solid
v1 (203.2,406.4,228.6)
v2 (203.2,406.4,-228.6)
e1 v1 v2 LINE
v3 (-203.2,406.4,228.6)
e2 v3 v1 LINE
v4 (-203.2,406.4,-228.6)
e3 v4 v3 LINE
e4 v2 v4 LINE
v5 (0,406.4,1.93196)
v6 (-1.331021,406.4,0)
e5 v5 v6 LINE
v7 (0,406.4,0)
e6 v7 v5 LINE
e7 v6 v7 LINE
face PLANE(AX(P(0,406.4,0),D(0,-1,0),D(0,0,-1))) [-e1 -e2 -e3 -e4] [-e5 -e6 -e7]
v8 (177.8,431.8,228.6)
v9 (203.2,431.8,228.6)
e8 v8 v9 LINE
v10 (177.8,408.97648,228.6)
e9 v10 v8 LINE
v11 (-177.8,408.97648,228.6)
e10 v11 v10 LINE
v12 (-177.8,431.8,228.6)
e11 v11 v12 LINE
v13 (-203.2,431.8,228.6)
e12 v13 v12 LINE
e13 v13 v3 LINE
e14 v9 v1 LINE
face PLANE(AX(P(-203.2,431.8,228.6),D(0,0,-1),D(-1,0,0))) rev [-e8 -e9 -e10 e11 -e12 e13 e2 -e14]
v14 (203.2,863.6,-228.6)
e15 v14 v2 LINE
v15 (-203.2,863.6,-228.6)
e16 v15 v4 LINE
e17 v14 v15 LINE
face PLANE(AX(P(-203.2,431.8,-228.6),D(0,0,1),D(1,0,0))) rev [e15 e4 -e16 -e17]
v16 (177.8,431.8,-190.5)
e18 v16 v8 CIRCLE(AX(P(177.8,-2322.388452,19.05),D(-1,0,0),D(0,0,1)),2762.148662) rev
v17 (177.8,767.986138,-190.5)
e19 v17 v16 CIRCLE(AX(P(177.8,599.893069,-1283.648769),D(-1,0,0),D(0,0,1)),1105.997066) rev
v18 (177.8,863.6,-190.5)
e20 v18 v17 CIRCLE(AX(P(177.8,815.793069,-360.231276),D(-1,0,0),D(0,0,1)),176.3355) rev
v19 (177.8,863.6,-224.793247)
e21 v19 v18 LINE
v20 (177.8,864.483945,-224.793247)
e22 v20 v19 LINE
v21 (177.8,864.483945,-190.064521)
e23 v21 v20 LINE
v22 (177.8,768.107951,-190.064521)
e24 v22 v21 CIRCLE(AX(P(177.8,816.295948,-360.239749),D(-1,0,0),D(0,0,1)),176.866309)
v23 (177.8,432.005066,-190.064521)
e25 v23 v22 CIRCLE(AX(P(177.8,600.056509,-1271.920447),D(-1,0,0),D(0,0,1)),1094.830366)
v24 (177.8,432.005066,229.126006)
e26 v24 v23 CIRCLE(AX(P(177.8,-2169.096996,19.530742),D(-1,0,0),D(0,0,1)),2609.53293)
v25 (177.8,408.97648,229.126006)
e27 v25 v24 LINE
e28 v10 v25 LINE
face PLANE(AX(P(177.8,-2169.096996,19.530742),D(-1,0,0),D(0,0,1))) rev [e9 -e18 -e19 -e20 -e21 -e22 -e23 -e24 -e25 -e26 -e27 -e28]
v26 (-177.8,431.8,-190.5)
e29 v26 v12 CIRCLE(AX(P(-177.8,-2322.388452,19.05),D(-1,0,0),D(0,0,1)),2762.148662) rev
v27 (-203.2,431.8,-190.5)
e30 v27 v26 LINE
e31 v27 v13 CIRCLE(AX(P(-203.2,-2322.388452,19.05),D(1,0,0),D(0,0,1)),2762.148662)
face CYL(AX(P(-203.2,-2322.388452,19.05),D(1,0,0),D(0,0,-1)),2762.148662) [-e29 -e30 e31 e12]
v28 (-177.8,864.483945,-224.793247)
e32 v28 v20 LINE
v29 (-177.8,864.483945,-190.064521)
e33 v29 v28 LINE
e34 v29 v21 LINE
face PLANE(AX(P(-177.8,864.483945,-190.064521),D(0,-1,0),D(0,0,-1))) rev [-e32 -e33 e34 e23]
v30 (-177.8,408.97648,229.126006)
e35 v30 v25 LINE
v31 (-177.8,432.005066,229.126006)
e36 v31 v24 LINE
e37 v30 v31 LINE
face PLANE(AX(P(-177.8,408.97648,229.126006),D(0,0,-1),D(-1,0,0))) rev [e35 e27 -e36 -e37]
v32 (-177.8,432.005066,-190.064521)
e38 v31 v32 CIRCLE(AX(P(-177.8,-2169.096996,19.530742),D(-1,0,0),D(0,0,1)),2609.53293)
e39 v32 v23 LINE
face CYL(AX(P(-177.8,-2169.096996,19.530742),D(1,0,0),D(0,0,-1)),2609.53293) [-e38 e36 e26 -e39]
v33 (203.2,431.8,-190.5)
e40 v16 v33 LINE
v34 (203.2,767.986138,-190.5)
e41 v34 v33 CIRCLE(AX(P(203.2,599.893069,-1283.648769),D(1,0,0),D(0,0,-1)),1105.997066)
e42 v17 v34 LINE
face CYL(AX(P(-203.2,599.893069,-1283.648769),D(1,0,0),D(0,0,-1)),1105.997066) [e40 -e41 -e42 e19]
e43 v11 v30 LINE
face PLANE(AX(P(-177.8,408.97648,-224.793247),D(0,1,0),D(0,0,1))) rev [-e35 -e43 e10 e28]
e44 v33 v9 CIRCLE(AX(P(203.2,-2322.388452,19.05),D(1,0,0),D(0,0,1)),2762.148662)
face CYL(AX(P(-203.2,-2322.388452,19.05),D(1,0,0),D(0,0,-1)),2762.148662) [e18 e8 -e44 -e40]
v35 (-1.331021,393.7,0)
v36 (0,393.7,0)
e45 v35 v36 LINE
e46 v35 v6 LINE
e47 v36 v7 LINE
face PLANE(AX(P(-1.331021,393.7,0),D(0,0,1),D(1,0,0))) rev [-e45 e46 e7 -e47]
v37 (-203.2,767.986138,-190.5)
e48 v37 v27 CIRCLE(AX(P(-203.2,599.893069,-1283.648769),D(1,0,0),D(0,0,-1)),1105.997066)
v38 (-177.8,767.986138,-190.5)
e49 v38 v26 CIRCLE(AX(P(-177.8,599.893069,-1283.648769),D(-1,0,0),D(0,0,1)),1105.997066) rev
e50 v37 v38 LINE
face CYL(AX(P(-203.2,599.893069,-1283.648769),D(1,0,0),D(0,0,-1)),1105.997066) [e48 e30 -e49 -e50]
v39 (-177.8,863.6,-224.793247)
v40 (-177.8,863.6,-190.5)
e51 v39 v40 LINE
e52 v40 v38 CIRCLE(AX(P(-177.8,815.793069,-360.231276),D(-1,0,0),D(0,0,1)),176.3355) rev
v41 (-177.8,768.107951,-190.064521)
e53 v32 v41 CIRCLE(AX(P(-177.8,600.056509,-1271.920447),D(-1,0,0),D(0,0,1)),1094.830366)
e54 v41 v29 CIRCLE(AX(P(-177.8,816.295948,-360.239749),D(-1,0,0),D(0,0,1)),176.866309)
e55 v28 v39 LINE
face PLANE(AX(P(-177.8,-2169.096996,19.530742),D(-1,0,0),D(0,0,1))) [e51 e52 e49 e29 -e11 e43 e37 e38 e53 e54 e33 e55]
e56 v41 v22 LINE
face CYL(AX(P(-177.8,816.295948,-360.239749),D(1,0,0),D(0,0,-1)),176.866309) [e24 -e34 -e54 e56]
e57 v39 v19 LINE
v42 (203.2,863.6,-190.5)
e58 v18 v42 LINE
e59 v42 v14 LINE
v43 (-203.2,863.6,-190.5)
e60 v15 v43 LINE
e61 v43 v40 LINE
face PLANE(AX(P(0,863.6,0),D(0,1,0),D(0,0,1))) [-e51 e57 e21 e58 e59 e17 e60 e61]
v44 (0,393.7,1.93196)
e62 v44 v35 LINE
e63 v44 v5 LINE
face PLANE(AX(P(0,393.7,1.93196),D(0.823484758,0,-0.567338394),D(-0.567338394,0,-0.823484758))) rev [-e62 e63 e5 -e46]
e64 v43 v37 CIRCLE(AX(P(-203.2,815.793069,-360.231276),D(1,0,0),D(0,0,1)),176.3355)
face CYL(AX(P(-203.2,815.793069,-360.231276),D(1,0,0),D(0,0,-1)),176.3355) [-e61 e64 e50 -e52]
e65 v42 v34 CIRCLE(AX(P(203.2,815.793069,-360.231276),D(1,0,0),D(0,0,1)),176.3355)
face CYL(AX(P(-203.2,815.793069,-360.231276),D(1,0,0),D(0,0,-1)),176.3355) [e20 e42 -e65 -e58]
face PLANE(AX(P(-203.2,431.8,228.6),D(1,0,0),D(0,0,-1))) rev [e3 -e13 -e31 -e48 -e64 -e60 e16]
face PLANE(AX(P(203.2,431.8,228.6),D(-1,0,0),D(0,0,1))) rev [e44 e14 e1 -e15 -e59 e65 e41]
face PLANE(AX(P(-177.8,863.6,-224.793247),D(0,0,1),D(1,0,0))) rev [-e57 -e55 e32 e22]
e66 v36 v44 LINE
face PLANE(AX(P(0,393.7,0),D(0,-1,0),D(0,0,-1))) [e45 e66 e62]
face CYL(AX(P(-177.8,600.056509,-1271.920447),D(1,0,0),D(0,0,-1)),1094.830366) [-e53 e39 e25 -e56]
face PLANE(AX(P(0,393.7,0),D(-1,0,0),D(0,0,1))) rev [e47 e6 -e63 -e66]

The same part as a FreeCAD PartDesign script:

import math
import FreeCAD as App
import Part
import Sketcher
from FreeCAD import Vector
Q = App.Units.Quantity

doc = App.newDocument("Part")
params = doc.addObject("Spreadsheet::Sheet", "Params")
for row, (alias, value) in enumerate([
    ("sketch1_width", "16 in"),
    ("sketch1_height", "18 in"),
    ("pad1_length", "1 in"),
    ("sketch2_width", "16 in"),
    ("sketch2_height", "1.5 in"),
    ("pad2_length", "17 in"),
    ("sketch3_width", "17 in"),
    ("sketch3_height", "1.5 in"),
    ("sketch3_height2", "0.75 in"),
    ("pad3_length", "16 in"),
    ("sketch4_width", "1 in"),
    ("sketch4_height", "16.5 in"),
    ("pad4_length", "16 in"),
    ("sketch5_height", "1.5 in"),
    ("pad5_length", "16 in"),
    ("pad6_length", "14 in"),
    ("pad7_length", "0.5 in"),
], start=1):
    params.set(f"A{row}", alias)
    params.set(f"B{row}", "=" + value)
    params.setAlias(f"B{row}", alias)

body = doc.addObject("PartDesign::Body", "Body")

# Sketch on XZ plane
sketch1 = body.newObject("Sketcher::SketchObject", "Sketch")
sketch1.AttachmentSupport = (doc.getObject("XZ_Plane"), [""])
sketch1.MapMode = "FlatFace"
sketch1.AttachmentOffset = App.Placement(Vector(0, 0, -16 * 25.4), App.Rotation())
sketch1.addGeometry([
    Part.LineSegment(Vector(-203.2, -228.6, 0), Vector(-203.2, 228.6, 0)),
    Part.LineSegment(Vector(-203.2, 228.6, 0), Vector(203.2, 228.6, 0)),
    Part.LineSegment(Vector(203.2, 228.6, 0), Vector(203.2, -228.6, 0)),
    Part.LineSegment(Vector(203.2, -228.6, 0), Vector(-203.2, -228.6, 0)),
], False)
sketch1.addConstraint([
    Sketcher.Constraint("Coincident", 0, 2, 1, 1),
    Sketcher.Constraint("Coincident", 1, 2, 2, 1),
    Sketcher.Constraint("Coincident", 2, 2, 3, 1),
    Sketcher.Constraint("Coincident", 3, 2, 0, 1),
    Sketcher.Constraint("Vertical", 0),
    Sketcher.Constraint("Horizontal", 1),
    Sketcher.Constraint("Vertical", 2),
    Sketcher.Constraint("Horizontal", 3),
    Sketcher.Constraint("Symmetric", 0, 2, 2, 2, -1, 1),
    Sketcher.Constraint("DistanceX", 1, 1, 1, 2, Q("16 in")),
    Sketcher.Constraint("DistanceY", 0, 1, 0, 2, Q("18 in")),
])
sketch1.setExpression("Constraints[9]", "Params.sketch1_width")
sketch1.setExpression("Constraints[10]", "Params.sketch1_height")
pad1 = body.newObject("PartDesign::Pad", "Pad")
pad1.Profile = sketch1
pad1.setExpression("Length", "Params.pad1_length")
pad1.Reversed = True

# Sketch on XZ plane
sketch2 = body.newObject("Sketcher::SketchObject", "Sketch001")
sketch2.AttachmentSupport = (doc.getObject("XZ_Plane"), [""])
sketch2.MapMode = "FlatFace"
sketch2.AttachmentOffset = App.Placement(Vector(0, 0, -17 * 25.4), App.Rotation())
sketch2.addGeometry([
    Part.LineSegment(Vector(-203.2, -228.6, 0), Vector(-203.2, -190.5, 0)),
    Part.LineSegment(Vector(-203.2, -190.5, 0), Vector(203.2, -190.5, 0)),
    Part.LineSegment(Vector(203.2, -190.5, 0), Vector(203.2, -228.6, 0)),
    Part.LineSegment(Vector(203.2, -228.6, 0), Vector(-203.2, -228.6, 0)),
], False)
sketch2.addConstraint([
    Sketcher.Constraint("Coincident", 0, 2, 1, 1),
    Sketcher.Constraint("Coincident", 1, 2, 2, 1),
    Sketcher.Constraint("Coincident", 2, 2, 3, 1),
    Sketcher.Constraint("Coincident", 3, 2, 0, 1),
    Sketcher.Constraint("Vertical", 0),
    Sketcher.Constraint("Horizontal", 1),
    Sketcher.Constraint("Vertical", 2),
    Sketcher.Constraint("Horizontal", 3),
    Sketcher.Constraint("DistanceX", 1, 1, 1, 2, Q("16 in")),
    Sketcher.Constraint("DistanceY", 0, 1, 0, 2, Q("1.5 in")),
    Sketcher.Constraint("DistanceX", 0, 2, -1, 1, Q("8 in")),
    Sketcher.Constraint("DistanceY", 2, 2, -1, 1, Q("9 in")),
])
sketch2.setExpression("Constraints[8]", "Params.sketch2_width")
sketch2.setExpression("Constraints[9]", "Params.sketch2_height")
pad2 = body.newObject("PartDesign::Pad", "Pad001")
pad2.Profile = sketch2
pad2.setExpression("Length", "Params.pad2_length")
pad2.Reversed = True

# Sketch on YZ plane
sketch3 = body.newObject("Sketcher::SketchObject", "Sketch002")
sketch3.AttachmentSupport = (doc.getObject("YZ_Plane"), [""])
sketch3.MapMode = "FlatFace"
sketch3.AttachmentOffset = App.Placement(Vector(0, 0, 8 * 25.4), App.Rotation())
sketch3.addGeometry([
    Part.LineSegment(Vector(431.8, -190.5, 0), Vector(431.8, -228.6, 0)),
    Part.LineSegment(Vector(431.8, -228.6, 0), Vector(863.6, -228.6, 0)),
    Part.LineSegment(Vector(863.6, -228.6, 0), Vector(863.6, -209.55, 0)),
    Part.ArcOfCircle(Part.Circle(Vector(599.893069, -1283.648769, 0), Vector(0, 0, 1), 1105.997066), math.radians(76.205888), math.radians(98.741878)),
], False)
sketch3.addConstraint([
    Sketcher.Constraint("Coincident", 0, 2, 1, 1),
    Sketcher.Constraint("Coincident", 1, 2, 2, 1),
    Sketcher.Constraint("Coincident", 2, 2, 3, 1),
    Sketcher.Constraint("Coincident", 3, 2, 0, 1),
    Sketcher.Constraint("Vertical", 0),
    Sketcher.Constraint("Horizontal", 1),
    Sketcher.Constraint("Vertical", 2),
    Sketcher.Constraint("DistanceX", 1, 1, 1, 2, Q("17 in")),
    Sketcher.Constraint("DistanceY", 0, 2, 0, 1, Q("1.5 in")),
    Sketcher.Constraint("DistanceX", -1, 1, 0, 2, Q("17 in")),
    Sketcher.Constraint("DistanceY", 0, 2, -1, 1, Q("9 in")),
    Sketcher.Constraint("DistanceY", 2, 1, 2, 2, Q("0.75 in")),
    Sketcher.Constraint("Radius", 3, 1105.997066),
])
sketch3.setExpression("Constraints[7]", "Params.sketch3_width")
sketch3.setExpression("Constraints[8]", "Params.sketch3_height")
sketch3.setExpression("Constraints[11]", "Params.sketch3_height2")
pad3 = body.newObject("PartDesign::Pad", "Pad002")
pad3.Profile = sketch3
pad3.setExpression("Length", "Params.pad3_length")
pad3.Reversed = True

# Sketch on YZ plane
sketch4 = body.newObject("Sketcher::SketchObject", "Sketch003")
sketch4.AttachmentSupport = (doc.getObject("YZ_Plane"), [""])
sketch4.MapMode = "FlatFace"
sketch4.AttachmentOffset = App.Placement(Vector(0, 0, 8 * 25.4), App.Rotation())
sketch4.addGeometry([
    Part.LineSegment(Vector(431.8, 228.6, 0), Vector(406.4, 228.6, 0)),
    Part.LineSegment(Vector(406.4, 228.6, 0), Vector(406.4, -190.5, 0)),
    Part.LineSegment(Vector(406.4, -190.5, 0), Vector(431.8, -190.5, 0)),
    Part.ArcOfCircle(Part.Circle(Vector(-2322.388452, 19.05, 0), Vector(0, 0, 1), 2762.148662), math.radians(-4.350916), math.radians(4.350916)),
], False)
sketch4.addConstraint([
    Sketcher.Constraint("Coincident", 0, 2, 1, 1),
    Sketcher.Constraint("Coincident", 1, 2, 2, 1),
    Sketcher.Constraint("Coincident", 2, 2, 3, 1),
    Sketcher.Constraint("Coincident", 3, 2, 0, 1),
    Sketcher.Constraint("Horizontal", 0),
    Sketcher.Constraint("Vertical", 1),
    Sketcher.Constraint("Horizontal", 2),
    Sketcher.Constraint("Equal", 0, 2),
    Sketcher.Constraint("DistanceX", 0, 2, 0, 1, Q("1 in")),
    Sketcher.Constraint("DistanceY", 1, 2, 1, 1, Q("16.5 in")),
    Sketcher.Constraint("DistanceX", -1, 1, 0, 2, Q("16 in")),
    Sketcher.Constraint("DistanceY", -1, 1, 0, 2, Q("9 in")),
    Sketcher.Constraint("Radius", 3, 2762.148662),
])
sketch4.setExpression("Constraints[8]", "Params.sketch4_width")
sketch4.setExpression("Constraints[9]", "Params.sketch4_height")
pad4 = body.newObject("PartDesign::Pad", "Pad003")
pad4.Profile = sketch4
pad4.setExpression("Length", "Params.pad4_length")
pad4.Reversed = True

# Sketch on YZ plane
sketch5 = body.newObject("Sketcher::SketchObject", "Sketch004")
sketch5.AttachmentSupport = (doc.getObject("YZ_Plane"), [""])
sketch5.MapMode = "FlatFace"
sketch5.AttachmentOffset = App.Placement(Vector(0, 0, 8 * 25.4), App.Rotation())
sketch5.addGeometry([
    Part.LineSegment(Vector(863.6, -228.6, 0), Vector(863.6, -190.5, 0)),
    Part.ArcOfCircle(Part.Circle(Vector(815.793069, -360.231276, 0), Vector(0, 0, 1), 176.3355), math.radians(74.269464), math.radians(105.730536)),
    Part.LineSegment(Vector(767.986138, -190.5, 0), Vector(767.986138, -228.6, 0)),
    Part.LineSegment(Vector(767.986138, -228.6, 0), Vector(863.6, -228.6, 0)),
], False)
sketch5.addConstraint([
    Sketcher.Constraint("Coincident", 0, 2, 1, 1),
    Sketcher.Constraint("Coincident", 1, 2, 2, 1),
    Sketcher.Constraint("Coincident", 2, 2, 3, 1),
    Sketcher.Constraint("Coincident", 3, 2, 0, 1),
    Sketcher.Constraint("Vertical", 0),
    Sketcher.Constraint("Vertical", 2),
    Sketcher.Constraint("Horizontal", 3),
    Sketcher.Constraint("Horizontal", 0, 2, 1, 2),
    Sketcher.Constraint("DistanceY", 0, 1, 0, 2, Q("1.5 in")),
    Sketcher.Constraint("DistanceX", -1, 1, 0, 2, Q("34 in")),
    Sketcher.Constraint("DistanceY", 2, 2, -1, 1, Q("9 in")),
    Sketcher.Constraint("Radius", 1, 176.3355),
    Sketcher.Constraint("DistanceX", 3, 1, 3, 2, 95.613862),
])
sketch5.setExpression("Constraints[8]", "Params.sketch5_height")
pad5 = body.newObject("PartDesign::Pad", "Pad004")
pad5.Profile = sketch5
pad5.setExpression("Length", "Params.pad5_length")
pad5.Reversed = True

# Sketch on YZ plane
sketch6 = body.newObject("Sketcher::SketchObject", "Sketch005")
sketch6.AttachmentSupport = (doc.getObject("YZ_Plane"), [""])
sketch6.MapMode = "FlatFace"
sketch6.AttachmentOffset = App.Placement(Vector(0, 0, 7 * 25.4), App.Rotation())
sketch6.addGeometry([
    Part.LineSegment(Vector(864.483945, -224.793247, 0), Vector(864.483945, -190.064521, 0)),  # 0
    Part.ArcOfCircle(Part.Circle(Vector(816.295948, -360.239749, 0), Vector(0, 0, 1), 176.866309), math.radians(74.189632), math.radians(105.810368)),  # 1
    Part.ArcOfCircle(Part.Circle(Vector(600.056509, -1271.920447, 0), Vector(0, 0, 1), 1094.830366), math.radians(81.170454), math.radians(98.829546)),  # 2
    Part.ArcOfCircle(Part.Circle(Vector(-2169.096996, 19.530742, 0), Vector(0, 0, 1), 2609.53293), math.radians(-4.606906), math.radians(4.606906)),  # 3
    Part.LineSegment(Vector(432.005066, 229.126006, 0), Vector(408.97648, 229.126006, 0)),  # 4
    Part.LineSegment(Vector(408.97648, 229.126006, 0), Vector(408.97648, -224.793247, 0)),  # 5
    Part.LineSegment(Vector(408.97648, -224.793247, 0), Vector(864.483945, -224.793247, 0)),  # 6
], False)
sketch6.addConstraint([
    Sketcher.Constraint("Coincident", 0, 2, 1, 1),
    Sketcher.Constraint("Coincident", 1, 2, 2, 1),
    Sketcher.Constraint("Coincident", 2, 2, 3, 1),
    Sketcher.Constraint("Coincident", 3, 2, 4, 1),
    Sketcher.Constraint("Coincident", 4, 2, 5, 1),
    Sketcher.Constraint("Coincident", 5, 2, 6, 1),
    Sketcher.Constraint("Coincident", 6, 2, 0, 1),
    Sketcher.Constraint("Vertical", 0),
    Sketcher.Constraint("Horizontal", 4),
    Sketcher.Constraint("Vertical", 5),
    Sketcher.Constraint("Horizontal", 6),
    Sketcher.Constraint("Horizontal", 0, 2, 1, 2),
    Sketcher.Constraint("Horizontal", 1, 2, 2, 2),
    Sketcher.Constraint("Radius", 1, 176.866309),
    Sketcher.Constraint("Radius", 3, 2609.53293),
    Sketcher.Constraint("Radius", 2, 1094.830366),
    Sketcher.Constraint("DistanceX", 4, 2, 4, 1, 23.028586),
    Sketcher.Constraint("DistanceX", 6, 1, 6, 2, 455.507465),
    Sketcher.Constraint("DistanceY", 0, 1, 0, 2, 34.728726),
    Sketcher.Constraint("DistanceY", 5, 2, 5, 1, 453.919253),
    Sketcher.Constraint("DistanceX", -1, 1, 1, 3, 816.295948),
    Sketcher.Constraint("DistanceY", 1, 3, -1, 1, 360.239749),
    Sketcher.Constraint("DistanceX", -1, 1, 2, 3, 600.056509),
    Sketcher.Constraint("DistanceY", 0, 2, -1, 1, 190.064521),
])
pad6 = body.newObject("PartDesign::Pad", "Pad005")
pad6.Profile = sketch6
pad6.setExpression("Length", "Params.pad6_length")
pad6.Reversed = True

# Sketch on XZ plane
sketch7 = body.newObject("Sketcher::SketchObject", "Sketch006")
sketch7.AttachmentSupport = (doc.getObject("XZ_Plane"), [""])
sketch7.MapMode = "FlatFace"
sketch7.AttachmentOffset = App.Placement(Vector(0, 0, -16 * 25.4), App.Rotation())
sketch7.addGeometry([
    Part.LineSegment(Vector(0, 0, 0), Vector(0, 1.93196, 0)),
    Part.LineSegment(Vector(0, 1.93196, 0), Vector(-1.331021, 0, 0)),
    Part.LineSegment(Vector(-1.331021, 0, 0), Vector(0, 0, 0)),
], False)
sketch7.addConstraint([
    Sketcher.Constraint("Coincident", 0, 2, 1, 1),
    Sketcher.Constraint("Coincident", 1, 2, 2, 1),
    Sketcher.Constraint("Coincident", 2, 2, 0, 1),
    Sketcher.Constraint("Vertical", 0),
    Sketcher.Constraint("Horizontal", 2),
    Sketcher.Constraint("Coincident", 2, 2, -1, 1),
    Sketcher.Constraint("DistanceX", 2, 1, 2, 2, 1.331021),
    Sketcher.Constraint("DistanceY", 0, 1, 0, 2, 1.93196),
])
pad7 = body.newObject("PartDesign::Pad", "Pad006")
pad7.Profile = sketch7
pad7.setExpression("Length", "Params.pad7_length")

doc.recompute()
